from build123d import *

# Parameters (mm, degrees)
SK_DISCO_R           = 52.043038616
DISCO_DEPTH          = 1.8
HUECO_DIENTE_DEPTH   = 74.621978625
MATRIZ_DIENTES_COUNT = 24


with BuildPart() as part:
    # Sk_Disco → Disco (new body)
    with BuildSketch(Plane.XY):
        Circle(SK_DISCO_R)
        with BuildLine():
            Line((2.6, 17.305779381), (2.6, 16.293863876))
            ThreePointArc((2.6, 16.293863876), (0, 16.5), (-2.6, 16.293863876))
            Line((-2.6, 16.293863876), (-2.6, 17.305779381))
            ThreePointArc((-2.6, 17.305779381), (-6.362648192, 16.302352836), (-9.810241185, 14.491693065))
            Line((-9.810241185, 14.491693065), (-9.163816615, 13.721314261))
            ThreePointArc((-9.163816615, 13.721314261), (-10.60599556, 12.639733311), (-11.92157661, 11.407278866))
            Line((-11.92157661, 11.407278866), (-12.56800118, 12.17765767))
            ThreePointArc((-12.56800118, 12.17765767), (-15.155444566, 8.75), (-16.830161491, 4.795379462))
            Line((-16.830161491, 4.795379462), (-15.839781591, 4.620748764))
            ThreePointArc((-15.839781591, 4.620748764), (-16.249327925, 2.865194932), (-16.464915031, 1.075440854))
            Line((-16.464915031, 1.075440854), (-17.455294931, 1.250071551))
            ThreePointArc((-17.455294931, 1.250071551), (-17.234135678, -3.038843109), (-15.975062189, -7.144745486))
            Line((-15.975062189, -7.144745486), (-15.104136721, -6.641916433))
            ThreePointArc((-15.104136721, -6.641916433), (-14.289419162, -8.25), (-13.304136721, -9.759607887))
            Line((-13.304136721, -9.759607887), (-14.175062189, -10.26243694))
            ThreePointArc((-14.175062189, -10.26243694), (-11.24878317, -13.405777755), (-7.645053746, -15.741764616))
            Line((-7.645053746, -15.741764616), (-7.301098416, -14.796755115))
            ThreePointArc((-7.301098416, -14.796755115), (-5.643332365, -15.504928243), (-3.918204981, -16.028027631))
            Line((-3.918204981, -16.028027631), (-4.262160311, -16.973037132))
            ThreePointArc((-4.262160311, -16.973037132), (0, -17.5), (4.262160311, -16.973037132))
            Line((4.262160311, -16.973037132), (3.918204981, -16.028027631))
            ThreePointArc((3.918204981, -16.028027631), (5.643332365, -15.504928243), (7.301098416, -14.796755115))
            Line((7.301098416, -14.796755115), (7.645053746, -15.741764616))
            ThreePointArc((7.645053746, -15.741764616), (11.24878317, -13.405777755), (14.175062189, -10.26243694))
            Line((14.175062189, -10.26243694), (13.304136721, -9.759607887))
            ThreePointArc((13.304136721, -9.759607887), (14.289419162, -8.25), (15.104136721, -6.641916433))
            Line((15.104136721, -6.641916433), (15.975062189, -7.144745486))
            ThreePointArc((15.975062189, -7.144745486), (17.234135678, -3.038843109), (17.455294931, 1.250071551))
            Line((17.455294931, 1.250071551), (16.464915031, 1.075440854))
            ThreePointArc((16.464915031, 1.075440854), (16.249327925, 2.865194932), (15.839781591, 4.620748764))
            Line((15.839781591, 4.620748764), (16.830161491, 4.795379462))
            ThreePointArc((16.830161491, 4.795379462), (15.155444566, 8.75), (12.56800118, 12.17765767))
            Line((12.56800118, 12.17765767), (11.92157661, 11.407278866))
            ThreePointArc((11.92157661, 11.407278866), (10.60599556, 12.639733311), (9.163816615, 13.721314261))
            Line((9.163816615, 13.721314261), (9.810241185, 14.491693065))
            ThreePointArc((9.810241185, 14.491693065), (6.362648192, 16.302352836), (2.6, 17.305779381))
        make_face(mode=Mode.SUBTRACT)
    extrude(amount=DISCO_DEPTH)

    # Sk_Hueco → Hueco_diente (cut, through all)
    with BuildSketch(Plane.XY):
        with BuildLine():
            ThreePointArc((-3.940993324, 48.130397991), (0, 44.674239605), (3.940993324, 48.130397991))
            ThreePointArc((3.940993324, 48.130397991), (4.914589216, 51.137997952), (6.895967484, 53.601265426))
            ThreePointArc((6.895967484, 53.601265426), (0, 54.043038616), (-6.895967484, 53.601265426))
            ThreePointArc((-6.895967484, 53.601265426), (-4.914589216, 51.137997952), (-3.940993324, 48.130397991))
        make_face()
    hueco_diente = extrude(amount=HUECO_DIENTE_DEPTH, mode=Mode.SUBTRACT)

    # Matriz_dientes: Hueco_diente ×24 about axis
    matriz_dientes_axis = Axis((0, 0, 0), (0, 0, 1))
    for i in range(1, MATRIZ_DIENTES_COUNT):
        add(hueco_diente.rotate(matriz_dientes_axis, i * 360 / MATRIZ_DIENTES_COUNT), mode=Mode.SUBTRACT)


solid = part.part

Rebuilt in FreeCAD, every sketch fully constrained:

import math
import FreeCAD as App
import Part
import Sketcher
Q = App.Units.Quantity

doc = App.newDocument("Part")
body = doc.addObject("PartDesign::Body", "Body")

# Sketch on XY plane
sketch1 = body.newObject("Sketcher::SketchObject", "Sketch")
sketch1.AttachmentSupport = (doc.getObject("XY_Plane"), [""])
sketch1.MapMode = "FlatFace"
sketch1.addGeometry(Part.Circle(App.Vector(0, 0, 0), App.Vector(0, 0, 1), 52.043039), False)
sketch1.addGeometry(Part.LineSegment(App.Vector(2.6, 16.293864, 0), App.Vector(2.6, 17.305779, 0)), False)
sketch1.addGeometry(Part.ArcOfCircle(Part.Circle(App.Vector(0, 0, 0), App.Vector(0, 0, 1), 17.5), math.radians(55.903721), math.radians(81.455852)), False)
sketch1.addGeometry(Part.LineSegment(App.Vector(9.810241, 14.491693, 0), App.Vector(9.163817, 13.721314, 0)), False)
sketch1.addGeometry(Part.ArcOfCircle(Part.Circle(App.Vector(0, 0, 0), App.Vector(0, 0, 1), 16.5), math.radians(43.737087), math.radians(56.262913)), False)
sketch1.addGeometry(Part.LineSegment(App.Vector(11.921577, 11.407279, 0), App.Vector(12.568001, 12.177658, 0)), False)
sketch1.addGeometry(Part.ArcOfCircle(Part.Circle(App.Vector(0, 0, 0), App.Vector(0, 0, 1), 17.5), math.radians(15.903721), math.radians(44.096279)), False)
sketch1.addGeometry(Part.LineSegment(App.Vector(16.830161, 4.795379, 0), App.Vector(15.839782, 4.620749, 0)), False)
sketch1.addGeometry(Part.ArcOfCircle(Part.Circle(App.Vector(0, 0, 0), App.Vector(0, 0, 1), 16.5), math.radians(3.737087), math.radians(16.262913)), False)
sketch1.addGeometry(Part.LineSegment(App.Vector(16.464915, 1.075441, 0), App.Vector(17.455295, 1.250072, 0)), False)
sketch1.addGeometry(Part.ArcOfCircle(Part.Circle(App.Vector(0, 0, 0), App.Vector(0, 0, 1), 17.5), math.radians(-24.096279), math.radians(4.096279)), False)
sketch1.addGeometry(Part.LineSegment(App.Vector(15.975062, -7.144745, 0), App.Vector(15.104137, -6.641916, 0)), False)
sketch1.addGeometry(Part.ArcOfCircle(Part.Circle(App.Vector(0, 0, 0), App.Vector(0, 0, 1), 16.5), math.radians(-36.262913), math.radians(-23.737087)), False)
sketch1.addGeometry(Part.LineSegment(App.Vector(13.304137, -9.759608, 0), App.Vector(14.175062, -10.262437, 0)), False)
sketch1.addGeometry(Part.ArcOfCircle(Part.Circle(App.Vector(0, 0, 0), App.Vector(0, 0, 1), 17.5), math.radians(-64.096279), math.radians(-35.903721)), False)
sketch1.addGeometry(Part.LineSegment(App.Vector(7.645054, -15.741765, 0), App.Vector(7.301098, -14.796755, 0)), False)
sketch1.addGeometry(Part.ArcOfCircle(Part.Circle(App.Vector(0, 0, 0), App.Vector(0, 0, 1), 16.5), math.radians(-76.262913), math.radians(-63.737087)), False)
sketch1.addGeometry(Part.LineSegment(App.Vector(3.918205, -16.028028, 0), App.Vector(4.26216, -16.973037, 0)), False)
sketch1.addGeometry(Part.ArcOfCircle(Part.Circle(App.Vector(0, 0, 0), App.Vector(0, 0, 1), 17.5), math.radians(-104.096279), math.radians(-75.903721)), False)
sketch1.addGeometry(Part.LineSegment(App.Vector(-4.26216, -16.973037, 0), App.Vector(-3.918205, -16.028028, 0)), False)
sketch1.addGeometry(Part.ArcOfCircle(Part.Circle(App.Vector(0, 0, 0), App.Vector(0, 0, 1), 16.5), math.radians(-116.262913), math.radians(-103.737087)), False)
sketch1.addGeometry(Part.LineSegment(App.Vector(-7.301098, -14.796755, 0), App.Vector(-7.645054, -15.741765, 0)), False)
sketch1.addGeometry(Part.ArcOfCircle(Part.Circle(App.Vector(0, 0, 0), App.Vector(0, 0, 1), 17.5), math.radians(-144.096279), math.radians(-115.903721)), False)
sketch1.addGeometry(Part.LineSegment(App.Vector(-14.175062, -10.262437, 0), App.Vector(-13.304137, -9.759608, 0)), False)
sketch1.addGeometry(Part.ArcOfCircle(Part.Circle(App.Vector(0, 0, 0), App.Vector(0, 0, 1), 16.5), math.radians(-156.262913), math.radians(-143.737087)), False)
sketch1.addGeometry(Part.LineSegment(App.Vector(-15.104137, -6.641916, 0), App.Vector(-15.975062, -7.144745, 0)), False)
sketch1.addGeometry(Part.ArcOfCircle(Part.Circle(App.Vector(0, 0, 0), App.Vector(0, 0, 1), 17.5), math.radians(175.903721), math.radians(204.096279)), False)
sketch1.addGeometry(Part.LineSegment(App.Vector(-17.455295, 1.250072, 0), App.Vector(-16.464915, 1.075441, 0)), False)
sketch1.addGeometry(Part.ArcOfCircle(Part.Circle(App.Vector(0, 0, 0), App.Vector(0, 0, 1), 16.5), math.radians(163.737087), math.radians(176.262913)), False)
sketch1.addGeometry(Part.LineSegment(App.Vector(-15.839782, 4.620749, 0), App.Vector(-16.830161, 4.795379, 0)), False)
sketch1.addGeometry(Part.ArcOfCircle(Part.Circle(App.Vector(0, 0, 0), App.Vector(0, 0, 1), 17.5), math.radians(135.903721), math.radians(164.096279)), False)
sketch1.addGeometry(Part.LineSegment(App.Vector(-12.568001, 12.177658, 0), App.Vector(-11.921577, 11.407279, 0)), False)
sketch1.addGeometry(Part.ArcOfCircle(Part.Circle(App.Vector(0, 0, 0), App.Vector(0, 0, 1), 16.5), math.radians(123.737087), math.radians(136.262913)), False)
sketch1.addGeometry(Part.LineSegment(App.Vector(-9.163817, 13.721314, 0), App.Vector(-9.810241, 14.491693, 0)), False)
sketch1.addGeometry(Part.ArcOfCircle(Part.Circle(App.Vector(0, 0, 0), App.Vector(0, 0, 1), 17.5), math.radians(98.544148), math.radians(124.096279)), False)
sketch1.addGeometry(Part.LineSegment(App.Vector(-2.6, 17.305779, 0), App.Vector(-2.6, 16.293864, 0)), False)
sketch1.addGeometry(Part.ArcOfCircle(Part.Circle(App.Vector(0, 0, 0), App.Vector(0, 0, 1), 16.5), math.radians(80.933788), math.radians(99.066212)), False)
sketch1.addConstraint(Sketcher.Constraint("Coincident", 1, 2, 2, 2))
sketch1.addConstraint(Sketcher.Constraint("Coincident", 2, 1, 3, 1))
sketch1.addConstraint(Sketcher.Constraint("Coincident", 3, 2, 4, 2))
sketch1.addConstraint(Sketcher.Constraint("Coincident", 4, 1, 5, 1))
sketch1.addConstraint(Sketcher.Constraint("Coincident", 5, 2, 6, 2))
sketch1.addConstraint(Sketcher.Constraint("Coincident", 6, 1, 7, 1))
sketch1.addConstraint(Sketcher.Constraint("Coincident", 7, 2, 8, 2))
sketch1.addConstraint(Sketcher.Constraint("Coincident", 8, 1, 9, 1))
sketch1.addConstraint(Sketcher.Constraint("Coincident", 9, 2, 10, 2))
sketch1.addConstraint(Sketcher.Constraint("Coincident", 10, 1, 11, 1))
sketch1.addConstraint(Sketcher.Constraint("Coincident", 11, 2, 12, 2))
sketch1.addConstraint(Sketcher.Constraint("Coincident", 12, 1, 13, 1))
sketch1.addConstraint(Sketcher.Constraint("Coincident", 13, 2, 14, 2))
sketch1.addConstraint(Sketcher.Constraint("Coincident", 14, 1, 15, 1))
sketch1.addConstraint(Sketcher.Constraint("Coincident", 15, 2, 16, 2))
sketch1.addConstraint(Sketcher.Constraint("Coincident", 16, 1, 17, 1))
sketch1.addConstraint(Sketcher.Constraint("Coincident", 17, 2, 18, 2))
sketch1.addConstraint(Sketcher.Constraint("Coincident", 18, 1, 19, 1))
sketch1.addConstraint(Sketcher.Constraint("Coincident", 19, 2, 20, 2))
sketch1.addConstraint(Sketcher.Constraint("Coincident", 20, 1, 21, 1))
sketch1.addConstraint(Sketcher.Constraint("Coincident", 21, 2, 22, 2))
sketch1.addConstraint(Sketcher.Constraint("Coincident", 22, 1, 23, 1))
sketch1.addConstraint(Sketcher.Constraint("Coincident", 23, 2, 24, 2))
sketch1.addConstraint(Sketcher.Constraint("Coincident", 24, 1, 25, 1))
sketch1.addConstraint(Sketcher.Constraint("Coincident", 25, 2, 26, 2))
sketch1.addConstraint(Sketcher.Constraint("Coincident", 26, 1, 27, 1))
sketch1.addConstraint(Sketcher.Constraint("Coincident", 27, 2, 28, 2))
sketch1.addConstraint(Sketcher.Constraint("Coincident", 28, 1, 29, 1))
sketch1.addConstraint(Sketcher.Constraint("Coincident", 29, 2, 30, 2))
sketch1.addConstraint(Sketcher.Constraint("Coincident", 30, 1, 31, 1))
sketch1.addConstraint(Sketcher.Constraint("Coincident", 31, 2, 32, 2))
sketch1.addConstraint(Sketcher.Constraint("Coincident", 32, 1, 33, 1))
sketch1.addConstraint(Sketcher.Constraint("Coincident", 33, 2, 34, 2))
sketch1.addConstraint(Sketcher.Constraint("Coincident", 34, 1, 35, 1))
sketch1.addConstraint(Sketcher.Constraint("Coincident", 35, 2, 36, 2))
sketch1.addConstraint(Sketcher.Constraint("Coincident", 36, 1, 1, 1))
sketch1.addConstraint(Sketcher.Constraint("Vertical", 1))
sketch1.addConstraint(Sketcher.Constraint("Vertical", 35))
sketch1.addConstraint(Sketcher.Constraint("Coincident", 0, 3, -1, 1))
sketch1.addConstraint(Sketcher.Constraint("Coincident", 2, 3, -1, 1))
sketch1.addConstraint(Sketcher.Constraint("Coincident", 4, 3, -1, 1))
sketch1.addConstraint(Sketcher.Constraint("Coincident", 6, 3, -1, 1))
sketch1.addConstraint(Sketcher.Constraint("Coincident", 8, 3, -1, 1))
sketch1.addConstraint(Sketcher.Constraint("Coincident", 10, 3, -1, 1))
sketch1.addConstraint(Sketcher.Constraint("Coincident", 12, 3, -1, 1))
sketch1.addConstraint(Sketcher.Constraint("Coincident", 14, 3, -1, 1))
sketch1.addConstraint(Sketcher.Constraint("Coincident", 16, 3, -1, 1))
sketch1.addConstraint(Sketcher.Constraint("Coincident", 18, 3, -1, 1))
sketch1.addConstraint(Sketcher.Constraint("Coincident", 20, 3, -1, 1))
sketch1.addConstraint(Sketcher.Constraint("Coincident", 22, 3, -1, 1))
sketch1.addConstraint(Sketcher.Constraint("Coincident", 24, 3, -1, 1))
sketch1.addConstraint(Sketcher.Constraint("Coincident", 26, 3, -1, 1))
sketch1.addConstraint(Sketcher.Constraint("Coincident", 28, 3, -1, 1))
sketch1.addConstraint(Sketcher.Constraint("Coincident", 30, 3, -1, 1))
sketch1.addConstraint(Sketcher.Constraint("Coincident", 32, 3, -1, 1))
sketch1.addConstraint(Sketcher.Constraint("Coincident", 34, 3, -1, 1))
sketch1.addConstraint(Sketcher.Constraint("Coincident", 36, 3, -1, 1))
sketch1.addConstraint(Sketcher.Constraint("Equal", 2, 6))
sketch1.addConstraint(Sketcher.Constraint("Equal", 4, 8))
sketch1.addConstraint(Sketcher.Constraint("Equal", 6, 10))
sketch1.addConstraint(Sketcher.Constraint("Equal", 8, 12))
sketch1.addConstraint(Sketcher.Constraint("Equal", 10, 14))
sketch1.addConstraint(Sketcher.Constraint("Equal", 12, 16))
sketch1.addConstraint(Sketcher.Constraint("Equal", 14, 18))
sketch1.addConstraint(Sketcher.Constraint("Equal", 16, 20))
sketch1.addConstraint(Sketcher.Constraint("Equal", 18, 22))
sketch1.addConstraint(Sketcher.Constraint("Equal", 20, 24))
sketch1.addConstraint(Sketcher.Constraint("Equal", 22, 26))
sketch1.addConstraint(Sketcher.Constraint("Equal", 24, 28))
sketch1.addConstraint(Sketcher.Constraint("Equal", 26, 30))
sketch1.addConstraint(Sketcher.Constraint("Equal", 28, 32))
sketch1.addConstraint(Sketcher.Constraint("Equal", 30, 34))
sketch1.addConstraint(Sketcher.Constraint("Equal", 32, 36))
sketch1.addConstraint(Sketcher.Constraint("Parallel", 3, 5))
sketch1.addConstraint(Sketcher.Constraint("Parallel", 7, 9))
sketch1.addConstraint(Sketcher.Constraint("Parallel", 11, 13))
sketch1.addConstraint(Sketcher.Constraint("Parallel", 15, 17))
sketch1.addConstraint(Sketcher.Constraint("Parallel", 19, 21))
sketch1.addConstraint(Sketcher.Constraint("Parallel", 23, 25))
sketch1.addConstraint(Sketcher.Constraint("Parallel", 27, 29))
sketch1.addConstraint(Sketcher.Constraint("Parallel", 31, 33))
sketch1.addConstraint(Sketcher.Constraint("Horizontal", 17, 2, 18, 1))
sketch1.addConstraint(Sketcher.Constraint("Horizontal", 16, 1, 19, 2))
sketch1.addConstraint(Sketcher.Constraint("Horizontal", 15, 2, 20, 1))
sketch1.addConstraint(Sketcher.Constraint("Horizontal", 13, 2, 22, 1))
sketch1.addConstraint(Sketcher.Constraint("Horizontal", 12, 1, 23, 2))
sketch1.addConstraint(Sketcher.Constraint("Horizontal", 11, 2, 24, 1))
sketch1.addConstraint(Sketcher.Constraint("Horizontal", 9, 2, 26, 1))
sketch1.addConstraint(Sketcher.Constraint("Horizontal", 8, 1, 27, 2))
sketch1.addConstraint(Sketcher.Constraint("Horizontal", 7, 2, 28, 1))
sketch1.addConstraint(Sketcher.Constraint("Horizontal", 5, 2, 30, 1))
sketch1.addConstraint(Sketcher.Constraint("Horizontal", 4, 1, 31, 2))
sketch1.addConstraint(Sketcher.Constraint("Horizontal", 3, 2, 32, 1))
sketch1.addConstraint(Sketcher.Constraint("Horizontal", 1, 2, 34, 1))
sketch1.addConstraint(Sketcher.Constraint("Equal", 3, 5))
sketch1.addConstraint(Sketcher.Constraint("Equal", 5, 7))
sketch1.addConstraint(Sketcher.Constraint("Equal", 7, 9))
sketch1.addConstraint(Sketcher.Constraint("Equal", 9, 11))
sketch1.addConstraint(Sketcher.Constraint("Equal", 11, 13))
sketch1.addConstraint(Sketcher.Constraint("Equal", 13, 15))
sketch1.addConstraint(Sketcher.Constraint("Equal", 15, 17))
sketch1.addConstraint(Sketcher.Constraint("Radius", 2, 17.5))
sketch1.addConstraint(Sketcher.Constraint("Radius", 4, 16.5))
sketch1.addConstraint(Sketcher.Constraint("Angle", 3, Q("-130 deg")))
sketch1.addConstraint(Sketcher.Constraint("Angle", 7, Q("-170 deg")))
sketch1.addConstraint(Sketcher.Constraint("Angle", 11, Q("150 deg")))
sketch1.addConstraint(Sketcher.Constraint("Angle", 15, Q("110 deg")))
sketch1.addConstraint(Sketcher.Constraint("DistanceX", -1, 1, 1, 2, 2.6))
sketch1.addConstraint(Sketcher.Constraint("DistanceX", 12, 1, 11, 2, 1.8))
sketch1.addConstraint(Sketcher.Constraint("Diameter", 0, 104.086077))
pad1 = body.newObject("PartDesign::Pad", "Pad")
pad1.Profile = sketch1
pad1.Length = 1.8

# Sketch on XY plane
sketch2 = body.newObject("Sketcher::SketchObject", "Sketch001")
sketch2.AttachmentSupport = (doc.getObject("XY_Plane"), [""])
sketch2.MapMode = "FlatFace"
sketch2.addGeometry(Part.ArcOfCircle(Part.Circle(App.Vector(0, 48.64924, 0), App.Vector(0, 0, 1), 3.975), math.radians(-172.5), math.radians(-7.5)), False)
sketch2.addGeometry(Part.ArcOfCircle(Part.Circle(App.Vector(12.59135, 46.991557, 0), App.Vector(0, 0, 1), 8.725), math.radians(130.750463), math.radians(172.5)), False)
sketch2.addGeometry(Part.ArcOfCircle(Part.Circle(App.Vector(0, 0, 0), App.Vector(0, 0, 1), 54.043039), math.radians(82.668992), math.radians(97.331008)), False)
sketch2.addGeometry(Part.ArcOfCircle(Part.Circle(App.Vector(-12.59135, 46.991557, 0), App.Vector(0, 0, 1), 8.725), math.radians(7.5), math.radians(49.249537)), False)
sketch2.addConstraint(Sketcher.Constraint("Tangent", 0, 2, 1, 2))
sketch2.addConstraint(Sketcher.Constraint("Coincident", 1, 1, 2, 1))
sketch2.addConstraint(Sketcher.Constraint("Coincident", 2, 2, 3, 2))
sketch2.addConstraint(Sketcher.Constraint("Tangent", 3, 1, 0, 1))
sketch2.addConstraint(Sketcher.Constraint("Coincident", 2, 3, -1, 1))
sketch2.addConstraint(Sketcher.Constraint("Equal", 1, 3))
sketch2.addConstraint(Sketcher.Constraint("Symmetric", 1, 3, 3, 3, -2))
sketch2.addConstraint(Sketcher.Constraint("Radius", 0, 3.975))
sketch2.addConstraint(Sketcher.Constraint("Radius", 1, 8.725))
sketch2.addConstraint(Sketcher.Constraint("Radius", 2, 54.043039))
sketch2.addConstraint(Sketcher.Constraint("DistanceX", 3, 3, 1, 3, 25.182699))
sketch2.addConstraint(Sketcher.Constraint("DistanceY", -1, 1, 0, 3, 48.64924))
pocket1 = body.newObject("PartDesign::Pocket", "Pocket")
pocket1.Profile = sketch2
pocket1.Type = "ThroughAll"
pocket1.Reversed = True
doc.recompute()

polarpattern = body.newObject("PartDesign::PolarPattern", "PolarPattern")
polarpattern.Originals = [pocket1]
polarpattern.Axis = (doc.getObject("Z_Axis"), [""])
polarpattern.Angle = 360
polarpattern.Occurrences = 24
body.Tip = polarpattern

doc.recompute()
